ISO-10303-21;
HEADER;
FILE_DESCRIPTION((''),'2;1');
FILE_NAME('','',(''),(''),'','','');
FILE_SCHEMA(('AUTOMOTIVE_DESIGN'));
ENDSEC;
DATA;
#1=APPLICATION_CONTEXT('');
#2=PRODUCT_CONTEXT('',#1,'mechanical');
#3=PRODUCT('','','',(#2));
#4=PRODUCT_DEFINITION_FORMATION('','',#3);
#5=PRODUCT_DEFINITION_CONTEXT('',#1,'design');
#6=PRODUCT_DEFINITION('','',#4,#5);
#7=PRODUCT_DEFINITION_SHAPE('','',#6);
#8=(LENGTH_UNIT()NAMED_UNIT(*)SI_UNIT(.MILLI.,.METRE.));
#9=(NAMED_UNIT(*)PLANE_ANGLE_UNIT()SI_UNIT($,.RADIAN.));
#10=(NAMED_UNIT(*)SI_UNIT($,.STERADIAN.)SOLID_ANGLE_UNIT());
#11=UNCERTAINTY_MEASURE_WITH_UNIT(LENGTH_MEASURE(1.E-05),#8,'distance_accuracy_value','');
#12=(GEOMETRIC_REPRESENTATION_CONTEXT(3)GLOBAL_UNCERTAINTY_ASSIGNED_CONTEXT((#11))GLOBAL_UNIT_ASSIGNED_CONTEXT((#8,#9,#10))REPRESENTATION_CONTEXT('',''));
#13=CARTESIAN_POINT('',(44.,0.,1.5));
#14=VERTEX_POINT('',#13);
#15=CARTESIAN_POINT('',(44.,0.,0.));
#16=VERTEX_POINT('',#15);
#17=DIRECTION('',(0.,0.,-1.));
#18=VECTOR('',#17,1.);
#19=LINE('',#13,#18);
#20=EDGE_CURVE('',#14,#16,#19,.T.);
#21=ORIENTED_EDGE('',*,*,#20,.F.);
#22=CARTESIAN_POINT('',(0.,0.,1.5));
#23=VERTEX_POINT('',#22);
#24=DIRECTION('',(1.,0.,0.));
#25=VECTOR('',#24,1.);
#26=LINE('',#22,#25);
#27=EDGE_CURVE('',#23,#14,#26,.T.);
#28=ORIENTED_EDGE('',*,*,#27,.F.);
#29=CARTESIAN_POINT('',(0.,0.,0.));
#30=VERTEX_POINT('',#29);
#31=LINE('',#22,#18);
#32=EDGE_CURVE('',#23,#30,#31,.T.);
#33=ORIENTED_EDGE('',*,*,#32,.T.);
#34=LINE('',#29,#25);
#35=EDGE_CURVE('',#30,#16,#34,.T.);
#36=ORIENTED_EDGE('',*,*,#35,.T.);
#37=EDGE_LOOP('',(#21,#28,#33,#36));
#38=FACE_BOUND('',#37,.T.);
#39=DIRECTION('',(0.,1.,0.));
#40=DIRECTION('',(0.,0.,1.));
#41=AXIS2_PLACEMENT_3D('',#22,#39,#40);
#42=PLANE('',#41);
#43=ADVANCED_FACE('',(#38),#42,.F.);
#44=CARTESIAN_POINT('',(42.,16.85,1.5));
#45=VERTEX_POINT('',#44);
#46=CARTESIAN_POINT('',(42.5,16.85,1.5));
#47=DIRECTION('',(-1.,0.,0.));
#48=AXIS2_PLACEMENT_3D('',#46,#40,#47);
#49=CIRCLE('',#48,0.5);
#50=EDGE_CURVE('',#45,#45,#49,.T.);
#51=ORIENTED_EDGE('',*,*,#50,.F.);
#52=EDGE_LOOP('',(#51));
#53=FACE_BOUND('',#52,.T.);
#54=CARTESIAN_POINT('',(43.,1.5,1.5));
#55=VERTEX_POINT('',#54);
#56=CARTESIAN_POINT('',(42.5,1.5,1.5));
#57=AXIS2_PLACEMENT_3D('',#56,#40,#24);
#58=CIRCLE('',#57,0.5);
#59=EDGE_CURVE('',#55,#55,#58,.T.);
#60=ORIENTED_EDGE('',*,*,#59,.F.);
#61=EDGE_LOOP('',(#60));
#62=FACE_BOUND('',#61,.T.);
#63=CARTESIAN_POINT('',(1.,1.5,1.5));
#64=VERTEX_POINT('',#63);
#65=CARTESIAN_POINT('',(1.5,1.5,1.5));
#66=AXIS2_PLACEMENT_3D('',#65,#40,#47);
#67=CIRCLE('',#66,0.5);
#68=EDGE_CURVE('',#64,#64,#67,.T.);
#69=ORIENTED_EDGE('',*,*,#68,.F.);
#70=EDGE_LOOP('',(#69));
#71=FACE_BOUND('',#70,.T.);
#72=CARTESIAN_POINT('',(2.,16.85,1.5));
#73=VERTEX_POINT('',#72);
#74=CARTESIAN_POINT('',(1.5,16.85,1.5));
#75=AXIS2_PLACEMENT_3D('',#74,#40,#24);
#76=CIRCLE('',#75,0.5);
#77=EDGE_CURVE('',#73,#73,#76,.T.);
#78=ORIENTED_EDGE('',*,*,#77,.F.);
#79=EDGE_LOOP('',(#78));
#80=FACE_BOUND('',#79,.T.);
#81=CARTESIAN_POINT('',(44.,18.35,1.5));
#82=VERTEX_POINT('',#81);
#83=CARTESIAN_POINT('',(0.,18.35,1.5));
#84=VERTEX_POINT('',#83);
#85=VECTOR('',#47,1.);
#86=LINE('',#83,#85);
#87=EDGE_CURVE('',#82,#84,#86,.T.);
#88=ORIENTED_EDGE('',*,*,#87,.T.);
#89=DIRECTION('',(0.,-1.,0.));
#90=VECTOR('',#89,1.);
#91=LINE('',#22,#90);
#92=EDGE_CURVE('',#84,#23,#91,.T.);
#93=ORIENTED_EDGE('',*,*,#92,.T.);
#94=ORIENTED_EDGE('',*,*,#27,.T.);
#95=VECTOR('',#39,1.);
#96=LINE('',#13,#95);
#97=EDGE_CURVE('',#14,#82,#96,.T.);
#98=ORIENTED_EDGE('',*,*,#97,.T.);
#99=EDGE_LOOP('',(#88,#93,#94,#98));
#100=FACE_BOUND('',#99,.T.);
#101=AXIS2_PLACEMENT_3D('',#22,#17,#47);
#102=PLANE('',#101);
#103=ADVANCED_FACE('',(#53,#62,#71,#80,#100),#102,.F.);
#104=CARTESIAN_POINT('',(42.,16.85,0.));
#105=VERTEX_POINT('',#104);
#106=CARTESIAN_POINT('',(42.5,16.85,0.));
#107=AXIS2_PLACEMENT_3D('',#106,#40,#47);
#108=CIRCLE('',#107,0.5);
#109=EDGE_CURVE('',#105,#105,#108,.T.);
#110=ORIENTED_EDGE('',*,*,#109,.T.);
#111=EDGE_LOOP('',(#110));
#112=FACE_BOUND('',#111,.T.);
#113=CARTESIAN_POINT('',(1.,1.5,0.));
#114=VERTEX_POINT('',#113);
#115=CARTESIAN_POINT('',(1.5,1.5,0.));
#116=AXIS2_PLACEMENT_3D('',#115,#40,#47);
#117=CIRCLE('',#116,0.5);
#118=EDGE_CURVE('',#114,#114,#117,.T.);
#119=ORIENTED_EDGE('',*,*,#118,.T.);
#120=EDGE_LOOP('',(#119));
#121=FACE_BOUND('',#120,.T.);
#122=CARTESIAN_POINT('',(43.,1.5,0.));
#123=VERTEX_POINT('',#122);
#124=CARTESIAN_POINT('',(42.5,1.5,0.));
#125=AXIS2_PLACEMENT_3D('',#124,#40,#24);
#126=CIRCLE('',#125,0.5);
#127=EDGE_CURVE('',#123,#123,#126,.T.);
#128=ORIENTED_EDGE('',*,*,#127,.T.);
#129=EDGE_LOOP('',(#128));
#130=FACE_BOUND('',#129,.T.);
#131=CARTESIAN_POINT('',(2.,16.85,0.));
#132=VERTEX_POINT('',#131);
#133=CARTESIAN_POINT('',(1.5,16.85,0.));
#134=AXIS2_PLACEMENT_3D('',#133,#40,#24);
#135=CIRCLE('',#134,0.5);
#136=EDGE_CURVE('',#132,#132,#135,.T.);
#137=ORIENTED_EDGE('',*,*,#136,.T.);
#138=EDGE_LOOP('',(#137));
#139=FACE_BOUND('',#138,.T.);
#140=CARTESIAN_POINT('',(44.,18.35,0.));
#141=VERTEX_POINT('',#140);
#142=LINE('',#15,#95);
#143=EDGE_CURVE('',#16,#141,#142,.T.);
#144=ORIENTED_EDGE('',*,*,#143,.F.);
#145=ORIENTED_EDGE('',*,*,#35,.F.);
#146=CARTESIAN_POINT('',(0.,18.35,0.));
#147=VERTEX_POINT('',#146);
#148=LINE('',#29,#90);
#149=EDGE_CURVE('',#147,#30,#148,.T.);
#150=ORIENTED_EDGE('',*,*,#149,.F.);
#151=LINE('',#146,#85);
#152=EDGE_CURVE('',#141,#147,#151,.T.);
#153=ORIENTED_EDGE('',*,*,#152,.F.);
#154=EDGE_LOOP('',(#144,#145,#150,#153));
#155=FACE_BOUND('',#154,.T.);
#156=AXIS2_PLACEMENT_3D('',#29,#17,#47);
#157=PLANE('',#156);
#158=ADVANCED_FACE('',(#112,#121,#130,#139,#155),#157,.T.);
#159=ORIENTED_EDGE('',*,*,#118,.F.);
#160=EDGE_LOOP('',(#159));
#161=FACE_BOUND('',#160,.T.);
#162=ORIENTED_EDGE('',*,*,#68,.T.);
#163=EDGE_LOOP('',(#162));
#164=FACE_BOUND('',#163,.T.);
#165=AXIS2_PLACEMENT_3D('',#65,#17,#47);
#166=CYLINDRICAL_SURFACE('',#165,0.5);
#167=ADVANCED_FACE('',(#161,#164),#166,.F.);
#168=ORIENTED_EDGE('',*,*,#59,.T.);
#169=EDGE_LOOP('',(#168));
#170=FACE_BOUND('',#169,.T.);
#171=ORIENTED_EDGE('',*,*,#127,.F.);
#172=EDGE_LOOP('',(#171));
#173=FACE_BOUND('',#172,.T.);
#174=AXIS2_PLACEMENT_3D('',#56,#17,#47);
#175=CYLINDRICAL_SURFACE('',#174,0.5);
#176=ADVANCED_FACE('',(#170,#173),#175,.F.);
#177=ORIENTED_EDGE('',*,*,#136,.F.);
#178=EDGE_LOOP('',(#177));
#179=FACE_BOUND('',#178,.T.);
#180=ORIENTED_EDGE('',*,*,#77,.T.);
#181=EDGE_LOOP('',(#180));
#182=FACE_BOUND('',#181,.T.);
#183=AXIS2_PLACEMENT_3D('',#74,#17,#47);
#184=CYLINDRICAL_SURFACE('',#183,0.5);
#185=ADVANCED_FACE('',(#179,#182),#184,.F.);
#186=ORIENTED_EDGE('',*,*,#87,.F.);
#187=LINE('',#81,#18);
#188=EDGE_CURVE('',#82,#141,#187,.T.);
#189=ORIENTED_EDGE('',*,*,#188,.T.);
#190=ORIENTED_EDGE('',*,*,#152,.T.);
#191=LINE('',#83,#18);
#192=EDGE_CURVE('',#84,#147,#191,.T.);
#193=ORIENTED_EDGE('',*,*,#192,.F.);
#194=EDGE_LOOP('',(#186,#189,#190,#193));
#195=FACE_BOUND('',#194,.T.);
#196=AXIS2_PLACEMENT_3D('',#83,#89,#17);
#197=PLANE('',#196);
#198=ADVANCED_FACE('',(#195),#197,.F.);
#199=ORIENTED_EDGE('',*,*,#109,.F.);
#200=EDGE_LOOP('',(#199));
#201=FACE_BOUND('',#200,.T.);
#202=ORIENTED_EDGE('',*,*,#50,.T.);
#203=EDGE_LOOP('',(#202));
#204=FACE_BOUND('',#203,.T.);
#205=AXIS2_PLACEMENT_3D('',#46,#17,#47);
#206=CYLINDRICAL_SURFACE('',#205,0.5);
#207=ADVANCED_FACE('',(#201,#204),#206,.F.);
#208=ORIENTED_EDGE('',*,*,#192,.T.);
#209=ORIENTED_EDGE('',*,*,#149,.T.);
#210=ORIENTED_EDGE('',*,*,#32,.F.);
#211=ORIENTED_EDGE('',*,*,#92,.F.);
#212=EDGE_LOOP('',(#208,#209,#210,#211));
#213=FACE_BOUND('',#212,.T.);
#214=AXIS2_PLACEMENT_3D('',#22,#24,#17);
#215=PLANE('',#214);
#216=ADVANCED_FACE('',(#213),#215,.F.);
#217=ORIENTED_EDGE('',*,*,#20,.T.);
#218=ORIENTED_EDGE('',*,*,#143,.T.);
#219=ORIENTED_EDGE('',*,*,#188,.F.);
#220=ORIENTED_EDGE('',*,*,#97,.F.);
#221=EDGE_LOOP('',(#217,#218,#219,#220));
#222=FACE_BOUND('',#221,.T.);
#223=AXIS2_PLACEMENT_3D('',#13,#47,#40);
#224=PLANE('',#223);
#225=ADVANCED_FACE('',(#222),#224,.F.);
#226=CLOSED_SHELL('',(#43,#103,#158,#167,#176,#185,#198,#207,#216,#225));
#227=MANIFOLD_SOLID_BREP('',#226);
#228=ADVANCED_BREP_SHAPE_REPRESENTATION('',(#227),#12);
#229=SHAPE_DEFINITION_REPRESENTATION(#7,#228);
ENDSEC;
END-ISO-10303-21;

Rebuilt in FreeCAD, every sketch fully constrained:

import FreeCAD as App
import Part
import Sketcher
from FreeCAD import Vector

doc = App.newDocument("Part")
body = doc.addObject("PartDesign::Body", "Body")

sketch1 = body.newObject("Sketcher::SketchObject", "Sketch")
sketch1.AttachmentSupport = (doc.getObject("XY_Plane"), [""])
sketch1.MapMode = "FlatFace"
sketch1.addGeometry([
    Part.LineSegment(Vector(0, 18.35, 0), Vector(0, 0, 0)),
    Part.LineSegment(Vector(0, 0, 0), Vector(44, 0, 0)),
    Part.LineSegment(Vector(44, 0, 0), Vector(44, 18.35, 0)),
    Part.LineSegment(Vector(44, 18.35, 0), Vector(0, 18.35, 0)),
    Part.Circle(Vector(1.5, 1.5, 0), Vector(0, 0, 1), 0.5),
    Part.Circle(Vector(42.5, 1.5, 0), Vector(0, 0, 1), 0.5),
    Part.Circle(Vector(1.5, 16.85, 0), Vector(0, 0, 1), 0.5),
    Part.Circle(Vector(42.5, 16.85, 0), Vector(0, 0, 1), 0.5),
], False)
sketch1.addConstraint([
    Sketcher.Constraint("Coincident", 0, 2, 1, 1),
    Sketcher.Constraint("Coincident", 1, 2, 2, 1),
    Sketcher.Constraint("Coincident", 2, 2, 3, 1),
    Sketcher.Constraint("Coincident", 3, 2, 0, 1),
    Sketcher.Constraint("Vertical", 0),
    Sketcher.Constraint("Horizontal", 1),
    Sketcher.Constraint("Vertical", 2),
    Sketcher.Constraint("Horizontal", 3),
    Sketcher.Constraint("Coincident", 0, 2, -1, 1),
    Sketcher.Constraint("Equal", 4, 5),
    Sketcher.Constraint("Equal", 5, 6),
    Sketcher.Constraint("Equal", 6, 7),
    Sketcher.Constraint("Horizontal", 4, 3, 5, 3),
    Sketcher.Constraint("Horizontal", 6, 3, 7, 3),
    Sketcher.Constraint("Vertical", 4, 3, 6, 3),
    Sketcher.Constraint("Vertical", 5, 3, 7, 3),
    Sketcher.Constraint("Diameter", 4, 1.0),
    Sketcher.Constraint("DistanceX", 1, 1, 1, 2, 44.0),
    Sketcher.Constraint("DistanceX", 4, 3, 5, 3, 41.0),
    Sketcher.Constraint("DistanceY", 0, 2, 0, 1, 18.35),
    Sketcher.Constraint("DistanceX", -1, 1, 4, 3, 1.5),
    Sketcher.Constraint("DistanceY", -1, 1, 4, 3, 1.5),
    Sketcher.Constraint("DistanceY", 7, 3, 2, 2, 1.5),
])
pad1 = body.newObject("PartDesign::Pad", "Pad")
pad1.Profile = sketch1
pad1.Length = 1.5

doc.recompute()
